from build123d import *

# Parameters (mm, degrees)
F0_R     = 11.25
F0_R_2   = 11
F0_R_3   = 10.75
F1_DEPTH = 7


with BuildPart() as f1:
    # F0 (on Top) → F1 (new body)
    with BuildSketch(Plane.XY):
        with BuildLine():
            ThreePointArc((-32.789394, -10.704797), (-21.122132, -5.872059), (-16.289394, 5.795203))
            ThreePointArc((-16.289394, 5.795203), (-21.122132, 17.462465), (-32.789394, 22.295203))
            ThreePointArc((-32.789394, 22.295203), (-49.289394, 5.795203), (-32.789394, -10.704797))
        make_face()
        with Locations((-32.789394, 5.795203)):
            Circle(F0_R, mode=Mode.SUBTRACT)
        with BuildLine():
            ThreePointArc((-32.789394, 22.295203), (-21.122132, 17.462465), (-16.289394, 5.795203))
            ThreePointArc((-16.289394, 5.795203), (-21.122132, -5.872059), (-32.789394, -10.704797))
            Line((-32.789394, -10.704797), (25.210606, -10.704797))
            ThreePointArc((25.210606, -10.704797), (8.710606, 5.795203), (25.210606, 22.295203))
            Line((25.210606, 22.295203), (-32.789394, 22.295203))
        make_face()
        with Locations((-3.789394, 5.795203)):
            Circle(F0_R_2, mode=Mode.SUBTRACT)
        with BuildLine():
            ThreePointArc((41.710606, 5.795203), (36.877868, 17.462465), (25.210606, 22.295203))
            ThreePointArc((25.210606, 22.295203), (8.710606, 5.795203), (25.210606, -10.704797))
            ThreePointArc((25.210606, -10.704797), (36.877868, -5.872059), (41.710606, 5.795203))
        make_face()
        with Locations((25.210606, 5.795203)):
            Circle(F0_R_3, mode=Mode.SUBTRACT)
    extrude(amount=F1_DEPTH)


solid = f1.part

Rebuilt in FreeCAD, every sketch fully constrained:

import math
import FreeCAD as App
import Part
import Sketcher

V = App.Vector
Q = App.Units.Quantity

doc = App.newDocument("Part")
body = doc.addObject("PartDesign::Body", "Body")

sketch1 = body.newObject("Sketcher::SketchObject", "Sketch")
sketch1.AttachmentSupport = (doc.getObject("XY_Plane"), [""])
sketch1.MapMode = "FlatFace"
sketch1.addGeometry([
    Part.ArcOfCircle(Part.Circle(V(-33, 6, 0), V(0, 0, 1), 16), math.radians(90), math.radians(270)),
    Part.LineSegment(V(-33, -11, 0), V(25, -11, 0)),
    Part.ArcOfCircle(Part.Circle(V(25, 6, 0), V(0, 0, 1), 16), math.radians(-90), math.radians(0)),
    Part.ArcOfCircle(Part.Circle(V(25, 6, 0), V(0, 0, 1), 16), math.radians(0), math.radians(90)),
    Part.LineSegment(V(25, 22, 0), V(-33, 22, 0)),
    Part.Circle(V(-33, 6, 0), V(0, 0, 1), 11),
    Part.Circle(V(-4, 6, 0), V(0, 0, 1), 11),
    Part.Circle(V(25, 6, 0), V(0, 0, 1), 11),
], False)
sketch1.addConstraint([
    Sketcher.Constraint("Tangent", 0, 2, 1, 1),
    Sketcher.Constraint("Tangent", 1, 2, 2, 1),
    Sketcher.Constraint("Tangent", 2, 2, 3, 1),
    Sketcher.Constraint("Tangent", 3, 2, 4, 1),
    Sketcher.Constraint("Tangent", 4, 2, 0, 1),
    Sketcher.Constraint("Horizontal", 1),
    Sketcher.Constraint("Horizontal", 4),
    Sketcher.Constraint("Coincident", 5, 3, 0, 3),
    Sketcher.Constraint("Coincident", 7, 3, 2, 3),
    Sketcher.Constraint("Equal", 0, 2),
    Sketcher.Constraint("Horizontal", 5, 3, 6, 3),
    Sketcher.Constraint("Horizontal", 7, 3, 2, 2),
    Sketcher.Constraint("Diameter", 6, Q("22 mm")),
    Sketcher.Constraint("Diameter", 5, Q("22.5 mm")),
    Sketcher.Constraint("Diameter", 7, Q("21.5 mm")),
    Sketcher.Constraint("Radius", 0, Q("16.5 mm")),
    Sketcher.Constraint("DistanceX", 1, 1, 1, 2, Q("58 mm")),
    Sketcher.Constraint("DistanceX", 0, 3, 6, 3, Q("29 mm")),
    Sketcher.Constraint("DistanceX", 0, 3, -1, 1, Q("32.789394 mm")),
    Sketcher.Constraint("DistanceY", -1, 1, 0, 3, Q("5.795203 mm")),
])
pad1 = body.newObject("PartDesign::Pad", "Pad")
pad1.Profile = sketch1
pad1.Length = 7

doc.recompute()
